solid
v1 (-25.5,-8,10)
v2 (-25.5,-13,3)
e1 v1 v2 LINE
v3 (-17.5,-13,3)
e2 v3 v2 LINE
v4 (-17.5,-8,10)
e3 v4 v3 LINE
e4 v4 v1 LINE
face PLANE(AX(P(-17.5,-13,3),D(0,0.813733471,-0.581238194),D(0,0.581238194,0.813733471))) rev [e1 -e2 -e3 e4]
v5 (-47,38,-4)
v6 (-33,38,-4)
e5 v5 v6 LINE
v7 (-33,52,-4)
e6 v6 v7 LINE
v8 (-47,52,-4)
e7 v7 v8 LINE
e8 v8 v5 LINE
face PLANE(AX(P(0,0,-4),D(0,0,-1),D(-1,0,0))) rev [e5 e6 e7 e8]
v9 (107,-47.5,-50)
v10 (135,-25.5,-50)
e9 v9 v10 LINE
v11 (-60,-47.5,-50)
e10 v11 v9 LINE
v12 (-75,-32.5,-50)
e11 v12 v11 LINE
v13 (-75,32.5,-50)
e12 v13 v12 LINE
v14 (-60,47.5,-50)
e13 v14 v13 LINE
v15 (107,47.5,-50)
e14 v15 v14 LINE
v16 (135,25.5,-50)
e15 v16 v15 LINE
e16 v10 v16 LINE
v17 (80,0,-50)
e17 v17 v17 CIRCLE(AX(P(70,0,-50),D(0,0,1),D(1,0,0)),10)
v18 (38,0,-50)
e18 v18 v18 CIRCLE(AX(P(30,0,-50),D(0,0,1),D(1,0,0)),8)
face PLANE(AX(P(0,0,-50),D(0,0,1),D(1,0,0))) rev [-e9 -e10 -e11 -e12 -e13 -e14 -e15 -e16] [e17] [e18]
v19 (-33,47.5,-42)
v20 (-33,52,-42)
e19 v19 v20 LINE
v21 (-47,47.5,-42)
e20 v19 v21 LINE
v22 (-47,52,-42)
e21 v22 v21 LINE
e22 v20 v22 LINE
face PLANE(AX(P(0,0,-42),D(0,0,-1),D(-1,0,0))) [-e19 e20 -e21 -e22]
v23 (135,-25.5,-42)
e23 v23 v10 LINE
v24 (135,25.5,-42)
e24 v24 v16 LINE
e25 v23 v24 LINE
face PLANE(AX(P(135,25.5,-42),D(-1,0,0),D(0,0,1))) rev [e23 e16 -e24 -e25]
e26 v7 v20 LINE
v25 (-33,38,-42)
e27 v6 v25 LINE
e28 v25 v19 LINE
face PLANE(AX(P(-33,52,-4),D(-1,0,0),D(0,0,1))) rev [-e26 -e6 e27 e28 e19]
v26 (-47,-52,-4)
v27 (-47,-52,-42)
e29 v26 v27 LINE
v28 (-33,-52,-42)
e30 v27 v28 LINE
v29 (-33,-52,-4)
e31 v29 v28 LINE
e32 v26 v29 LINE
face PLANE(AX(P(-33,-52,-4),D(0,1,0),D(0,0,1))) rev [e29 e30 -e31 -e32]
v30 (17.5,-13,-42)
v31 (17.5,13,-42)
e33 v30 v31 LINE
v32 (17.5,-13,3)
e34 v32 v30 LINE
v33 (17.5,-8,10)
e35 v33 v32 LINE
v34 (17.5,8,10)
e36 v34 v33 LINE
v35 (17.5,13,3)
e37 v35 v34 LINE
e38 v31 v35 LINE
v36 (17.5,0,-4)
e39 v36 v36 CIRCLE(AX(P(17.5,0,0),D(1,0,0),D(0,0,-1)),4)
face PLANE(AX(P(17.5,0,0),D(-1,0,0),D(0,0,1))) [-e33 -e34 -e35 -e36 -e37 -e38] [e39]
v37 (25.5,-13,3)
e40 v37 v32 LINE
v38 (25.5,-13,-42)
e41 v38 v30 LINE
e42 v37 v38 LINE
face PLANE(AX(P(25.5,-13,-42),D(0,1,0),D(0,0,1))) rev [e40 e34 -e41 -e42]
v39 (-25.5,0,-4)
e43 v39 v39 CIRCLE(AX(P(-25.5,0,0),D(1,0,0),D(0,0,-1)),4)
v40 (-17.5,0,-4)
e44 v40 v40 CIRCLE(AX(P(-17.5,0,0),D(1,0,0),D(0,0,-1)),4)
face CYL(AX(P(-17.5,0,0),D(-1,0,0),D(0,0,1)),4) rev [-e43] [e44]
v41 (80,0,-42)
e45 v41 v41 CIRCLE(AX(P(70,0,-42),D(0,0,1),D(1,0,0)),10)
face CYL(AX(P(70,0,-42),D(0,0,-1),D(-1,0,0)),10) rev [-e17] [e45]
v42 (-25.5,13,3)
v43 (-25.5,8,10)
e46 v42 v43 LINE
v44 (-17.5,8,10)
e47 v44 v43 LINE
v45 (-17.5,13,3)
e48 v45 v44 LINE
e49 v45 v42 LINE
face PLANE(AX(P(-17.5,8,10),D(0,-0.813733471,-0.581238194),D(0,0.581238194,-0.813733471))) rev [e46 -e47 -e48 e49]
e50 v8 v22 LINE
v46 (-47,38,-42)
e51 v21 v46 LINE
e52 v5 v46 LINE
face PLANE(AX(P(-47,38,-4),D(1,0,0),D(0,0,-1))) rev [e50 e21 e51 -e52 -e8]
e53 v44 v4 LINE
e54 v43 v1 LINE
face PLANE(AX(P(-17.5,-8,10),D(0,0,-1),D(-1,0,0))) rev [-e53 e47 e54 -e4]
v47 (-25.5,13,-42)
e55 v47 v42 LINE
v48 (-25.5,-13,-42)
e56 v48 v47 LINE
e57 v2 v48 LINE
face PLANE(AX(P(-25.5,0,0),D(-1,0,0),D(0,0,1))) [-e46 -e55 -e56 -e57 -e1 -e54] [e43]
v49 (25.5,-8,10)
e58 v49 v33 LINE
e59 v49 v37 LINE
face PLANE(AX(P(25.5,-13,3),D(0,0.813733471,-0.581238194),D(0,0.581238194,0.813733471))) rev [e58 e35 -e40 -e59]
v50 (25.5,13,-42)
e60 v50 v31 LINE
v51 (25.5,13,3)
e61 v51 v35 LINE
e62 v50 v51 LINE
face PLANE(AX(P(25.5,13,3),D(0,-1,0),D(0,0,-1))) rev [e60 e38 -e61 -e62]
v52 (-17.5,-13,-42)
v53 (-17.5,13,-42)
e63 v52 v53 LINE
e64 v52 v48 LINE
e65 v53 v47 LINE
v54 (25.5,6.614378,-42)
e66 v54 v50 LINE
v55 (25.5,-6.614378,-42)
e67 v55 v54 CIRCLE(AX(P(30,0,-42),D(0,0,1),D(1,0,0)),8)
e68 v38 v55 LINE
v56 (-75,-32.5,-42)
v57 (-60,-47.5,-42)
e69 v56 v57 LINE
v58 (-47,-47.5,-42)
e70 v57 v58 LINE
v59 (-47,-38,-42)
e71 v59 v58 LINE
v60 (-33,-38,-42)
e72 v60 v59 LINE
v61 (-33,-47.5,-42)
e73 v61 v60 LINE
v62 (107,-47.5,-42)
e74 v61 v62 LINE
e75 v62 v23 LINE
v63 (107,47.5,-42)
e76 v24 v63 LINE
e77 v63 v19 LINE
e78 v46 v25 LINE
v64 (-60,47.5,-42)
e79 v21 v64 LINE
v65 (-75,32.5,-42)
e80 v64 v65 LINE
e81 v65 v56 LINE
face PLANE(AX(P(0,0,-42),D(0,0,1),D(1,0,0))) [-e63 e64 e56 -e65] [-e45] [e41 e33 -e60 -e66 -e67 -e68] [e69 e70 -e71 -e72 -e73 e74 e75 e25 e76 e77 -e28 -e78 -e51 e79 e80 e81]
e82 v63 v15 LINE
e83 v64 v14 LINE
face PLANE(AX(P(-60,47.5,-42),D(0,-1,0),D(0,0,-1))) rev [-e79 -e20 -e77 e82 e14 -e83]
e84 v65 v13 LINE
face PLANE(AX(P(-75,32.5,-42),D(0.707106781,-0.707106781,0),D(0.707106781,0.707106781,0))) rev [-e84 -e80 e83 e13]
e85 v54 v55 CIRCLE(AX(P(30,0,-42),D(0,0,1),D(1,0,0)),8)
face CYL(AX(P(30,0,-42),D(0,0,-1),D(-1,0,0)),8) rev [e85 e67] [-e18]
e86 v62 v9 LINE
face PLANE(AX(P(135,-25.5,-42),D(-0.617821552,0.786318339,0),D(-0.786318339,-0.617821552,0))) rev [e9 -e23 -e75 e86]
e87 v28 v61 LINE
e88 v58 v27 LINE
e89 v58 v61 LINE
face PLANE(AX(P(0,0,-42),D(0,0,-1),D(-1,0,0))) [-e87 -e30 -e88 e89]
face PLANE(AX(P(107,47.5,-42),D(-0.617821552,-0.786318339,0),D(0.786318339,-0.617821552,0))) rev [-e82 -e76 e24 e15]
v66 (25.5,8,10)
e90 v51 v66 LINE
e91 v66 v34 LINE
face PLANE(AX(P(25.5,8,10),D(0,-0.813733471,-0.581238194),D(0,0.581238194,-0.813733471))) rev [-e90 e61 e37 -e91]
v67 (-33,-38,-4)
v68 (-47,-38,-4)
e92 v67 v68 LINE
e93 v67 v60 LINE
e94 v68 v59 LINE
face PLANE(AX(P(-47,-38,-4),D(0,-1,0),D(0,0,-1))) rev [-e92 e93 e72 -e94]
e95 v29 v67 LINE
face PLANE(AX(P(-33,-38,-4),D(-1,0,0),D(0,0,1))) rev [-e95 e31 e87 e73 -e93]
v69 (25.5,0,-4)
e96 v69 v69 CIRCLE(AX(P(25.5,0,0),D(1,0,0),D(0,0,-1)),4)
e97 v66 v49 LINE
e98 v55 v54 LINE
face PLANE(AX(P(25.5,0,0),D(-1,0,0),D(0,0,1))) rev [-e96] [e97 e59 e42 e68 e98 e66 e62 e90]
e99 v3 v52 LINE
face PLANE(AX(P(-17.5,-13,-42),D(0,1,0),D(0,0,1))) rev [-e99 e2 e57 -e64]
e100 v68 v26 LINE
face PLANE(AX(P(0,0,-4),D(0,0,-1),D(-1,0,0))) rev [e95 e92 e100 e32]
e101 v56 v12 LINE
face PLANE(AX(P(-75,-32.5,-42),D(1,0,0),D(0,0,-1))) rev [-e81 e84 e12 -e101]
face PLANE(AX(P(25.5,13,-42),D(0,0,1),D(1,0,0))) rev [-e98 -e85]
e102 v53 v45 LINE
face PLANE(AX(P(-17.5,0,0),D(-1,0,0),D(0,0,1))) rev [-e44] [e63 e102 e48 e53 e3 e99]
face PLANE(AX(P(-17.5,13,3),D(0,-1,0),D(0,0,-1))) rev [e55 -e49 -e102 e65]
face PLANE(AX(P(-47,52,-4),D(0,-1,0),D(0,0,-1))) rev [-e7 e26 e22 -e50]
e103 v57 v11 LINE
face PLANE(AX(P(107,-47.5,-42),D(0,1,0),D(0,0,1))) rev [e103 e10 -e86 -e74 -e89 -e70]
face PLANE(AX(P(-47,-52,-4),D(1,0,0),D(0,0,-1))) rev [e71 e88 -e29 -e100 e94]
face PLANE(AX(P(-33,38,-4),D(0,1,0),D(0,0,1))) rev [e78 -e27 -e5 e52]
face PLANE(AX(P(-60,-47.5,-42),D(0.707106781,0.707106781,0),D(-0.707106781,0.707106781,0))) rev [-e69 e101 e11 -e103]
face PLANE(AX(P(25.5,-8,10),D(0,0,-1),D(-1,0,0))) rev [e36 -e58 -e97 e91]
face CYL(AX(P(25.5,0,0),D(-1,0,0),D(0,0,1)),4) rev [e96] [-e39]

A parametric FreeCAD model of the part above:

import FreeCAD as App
import Part
import Sketcher
Q = App.Units.Quantity


def add_polygon(sketch, points):
    """Adds a closed chain of lines whose ends are joined by coincident constraints."""
    first, n = sketch.GeometryCount, len(points)
    for a, b in zip(points, points[1:] + points[:1]):
        sketch.addGeometry(Part.LineSegment(App.Vector(*a, 0), App.Vector(*b, 0)), False)
    for i in range(n):
        sketch.addConstraint(Sketcher.Constraint("Coincident", first + i, 2, first + (i + 1) % n, 1))

doc = App.newDocument("Part")
body = doc.addObject("PartDesign::Body", "Body")

# Sketch on XY plane
sketch1 = doc.addObject("Sketcher::SketchObject", "Sketch")
body.addObject(sketch1)
sketch1.AttachmentSupport = (doc.XY_Plane, [""])
sketch1.MapMode = "FlatFace"
sketch1.AttachmentOffset = App.Placement(App.Vector(0, 0, -50), App.Rotation())
add_polygon(sketch1, [(107, 48), (-60, 48), (-75, 32), (-75, -32), (-60, -48), (107, -48), (135, -26), (135, 26)])  # lines 0-7
sketch1.addGeometry(Part.Circle(App.Vector(70, 0, 0), App.Vector(0, 0, 1), 10), False)  # 8
sketch1.addGeometry(Part.Circle(App.Vector(30, 0, 0), App.Vector(0, 0, 1), 8), False)  # 9
sketch1.addConstraint([
    Sketcher.Constraint("Horizontal", 0),
    Sketcher.Constraint("Vertical", 2),
    Sketcher.Constraint("Horizontal", 4),
    Sketcher.Constraint("Vertical", 6),
    Sketcher.Constraint("Symmetric", 0, 2, 3, 2, -1),
    Sketcher.Constraint("PointOnObject", 8, 3, -1),
    Sketcher.Constraint("PointOnObject", 9, 3, -1),
    Sketcher.Constraint("Perpendicular", 1, 3),
    Sketcher.Constraint("Vertical", 4, 2, 7, 2),
    Sketcher.Constraint("Equal", 1, 3),
    Sketcher.Constraint("Equal", 5, 7),
    Sketcher.Constraint("Diameter", 8, Q("20 mm")),
    Sketcher.Constraint("Diameter", 9, Q("16 mm")),
    Sketcher.Constraint("DistanceX", 0, 2, 0, 1, Q("167 mm")),
    Sketcher.Constraint("DistanceY", 2, 2, 2, 1, Q("65 mm")),
    Sketcher.Constraint("DistanceY", 6, 1, 6, 2, Q("51 mm")),
    Sketcher.Constraint("DistanceX", -1, 1, 8, 3, Q("70 mm")),
    Sketcher.Constraint("DistanceX", -1, 1, 9, 3, Q("30 mm")),
    Sketcher.Constraint("DistanceX", 0, 2, -1, 1, Q("60 mm")),
    Sketcher.Constraint("DistanceX", 1, 2, -1, 1, Q("75 mm")),
    Sketcher.Constraint("DistanceX", -1, 1, 5, 2, Q("135 mm")),
])
pad1 = doc.addObject("PartDesign::Pad", "Pad")
body.addObject(pad1)
pad1.Profile = sketch1
pad1.Length = 8

# Sketch on YZ plane
sketch2 = doc.addObject("Sketcher::SketchObject", "Sketch001")
body.addObject(sketch2)
sketch2.AttachmentSupport = (doc.YZ_Plane, [""])
sketch2.MapMode = "FlatFace"
sketch2.AttachmentOffset = App.Placement(App.Vector(0, 0, 17.5), App.Rotation())
add_polygon(sketch2, [(-13, -42), (13, -42), (13, 3), (8, 10), (-8, 10), (-13, 3)])  # lines 0-5
sketch2.addGeometry(Part.Circle(App.Vector(0, 0, 0), App.Vector(0, 0, 1), 4), False)  # 6
sketch2.addConstraint([
    Sketcher.Constraint("Horizontal", 0),
    Sketcher.Constraint("Vertical", 1),
    Sketcher.Constraint("Horizontal", 3),
    Sketcher.Constraint("Vertical", 5),
    Sketcher.Constraint("Coincident", 6, 3, -1, 1),
    Sketcher.Constraint("Symmetric", 1, 2, 4, 2, -2),
    Sketcher.Constraint("Equal", 2, 4),
    Sketcher.Constraint("Diameter", 6, Q("8 mm")),
    Sketcher.Constraint("DistanceX", 0, 1, 0, 2, Q("26 mm")),
    Sketcher.Constraint("DistanceX", 3, 2, 3, 1, Q("16 mm")),
    Sketcher.Constraint("DistanceY", 1, 1, 1, 2, Q("45 mm")),
    Sketcher.Constraint("DistanceY", 0, 2, -1, 1, Q("42 mm")),
    Sketcher.Constraint("DistanceY", -1, 1, 2, 2, Q("10 mm")),
])
pad2 = doc.addObject("PartDesign::Pad", "Pad001")
body.addObject(pad2)
pad2.Profile = sketch2
pad2.Length = 8

# Sketch on YZ plane
sketch3 = doc.addObject("Sketcher::SketchObject", "Sketch002")
body.addObject(sketch3)
sketch3.AttachmentSupport = (doc.YZ_Plane, [""])
sketch3.MapMode = "FlatFace"
sketch3.AttachmentOffset = App.Placement(App.Vector(0, 0, -25.5), App.Rotation())
add_polygon(sketch3, [(-13, -42), (13, -42), (13, 3), (8, 10), (-8, 10), (-13, 3)])  # lines 0-5
sketch3.addGeometry(Part.Circle(App.Vector(0, 0, 0), App.Vector(0, 0, 1), 4), False)  # 6
sketch3.addConstraint([
    Sketcher.Constraint("Horizontal", 0),
    Sketcher.Constraint("Vertical", 1),
    Sketcher.Constraint("Horizontal", 3),
    Sketcher.Constraint("Vertical", 5),
    Sketcher.Constraint("Coincident", 6, 3, -1, 1),
    Sketcher.Constraint("Symmetric", 1, 2, 4, 2, -2),
    Sketcher.Constraint("Equal", 2, 4),
    Sketcher.Constraint("Diameter", 6, Q("8 mm")),
    Sketcher.Constraint("DistanceX", 0, 1, 0, 2, Q("26 mm")),
    Sketcher.Constraint("DistanceX", 3, 2, 3, 1, Q("16 mm")),
    Sketcher.Constraint("DistanceY", 1, 1, 1, 2, Q("45 mm")),
    Sketcher.Constraint("DistanceY", 0, 2, -1, 1, Q("42 mm")),
    Sketcher.Constraint("DistanceY", -1, 1, 2, 2, Q("10 mm")),
])
pad3 = doc.addObject("PartDesign::Pad", "Pad002")
body.addObject(pad3)
pad3.Profile = sketch3
pad3.Length = 8

# Sketch on XY plane
sketch4 = doc.addObject("Sketcher::SketchObject", "Sketch003")
body.addObject(sketch4)
sketch4.AttachmentSupport = (doc.XY_Plane, [""])
sketch4.MapMode = "FlatFace"
sketch4.AttachmentOffset = App.Placement(App.Vector(0, 0, -42), App.Rotation())
add_polygon(sketch4, [(-47, -38), (-47, -52), (-33, -52), (-33, -38)])  # lines 0-3
sketch4.addConstraint([
    Sketcher.Constraint("Vertical", 0),
    Sketcher.Constraint("Horizontal", 1),
    Sketcher.Constraint("Vertical", 2),
    Sketcher.Constraint("Horizontal", 3),
    Sketcher.Constraint("Equal", 3, 0),
    Sketcher.Constraint("DistanceX", 1, 1, 1, 2, Q("14 mm")),
    Sketcher.Constraint("DistanceX", 0, 2, -1, 1, Q("47 mm")),
    Sketcher.Constraint("DistanceY", 0, 2, -1, 1, Q("52 mm")),
])
pad4 = doc.addObject("PartDesign::Pad", "Pad003")
body.addObject(pad4)
pad4.Profile = sketch4
pad4.Length = 38

# Sketch on XY plane
sketch5 = doc.addObject("Sketcher::SketchObject", "Sketch004")
body.addObject(sketch5)
sketch5.AttachmentSupport = (doc.XY_Plane, [""])
sketch5.MapMode = "FlatFace"
sketch5.AttachmentOffset = App.Placement(App.Vector(0, 0, -42), App.Rotation())
add_polygon(sketch5, [(-47, 52), (-47, 38), (-33, 38), (-33, 52)])  # lines 0-3
sketch5.addConstraint([
    Sketcher.Constraint("Vertical", 0),
    Sketcher.Constraint("Horizontal", 1),
    Sketcher.Constraint("Vertical", 2),
    Sketcher.Constraint("Horizontal", 3),
    Sketcher.Constraint("Equal", 3, 0),
    Sketcher.Constraint("DistanceX", 1, 1, 1, 2, Q("14 mm")),
    Sketcher.Constraint("DistanceX", 0, 2, -1, 1, Q("47 mm")),
    Sketcher.Constraint("DistanceY", -1, 1, 0, 2, Q("38 mm")),
])
pad5 = doc.addObject("PartDesign::Pad", "Pad004")
body.addObject(pad5)
pad5.Profile = sketch5
pad5.Length = 38

doc.recompute()
